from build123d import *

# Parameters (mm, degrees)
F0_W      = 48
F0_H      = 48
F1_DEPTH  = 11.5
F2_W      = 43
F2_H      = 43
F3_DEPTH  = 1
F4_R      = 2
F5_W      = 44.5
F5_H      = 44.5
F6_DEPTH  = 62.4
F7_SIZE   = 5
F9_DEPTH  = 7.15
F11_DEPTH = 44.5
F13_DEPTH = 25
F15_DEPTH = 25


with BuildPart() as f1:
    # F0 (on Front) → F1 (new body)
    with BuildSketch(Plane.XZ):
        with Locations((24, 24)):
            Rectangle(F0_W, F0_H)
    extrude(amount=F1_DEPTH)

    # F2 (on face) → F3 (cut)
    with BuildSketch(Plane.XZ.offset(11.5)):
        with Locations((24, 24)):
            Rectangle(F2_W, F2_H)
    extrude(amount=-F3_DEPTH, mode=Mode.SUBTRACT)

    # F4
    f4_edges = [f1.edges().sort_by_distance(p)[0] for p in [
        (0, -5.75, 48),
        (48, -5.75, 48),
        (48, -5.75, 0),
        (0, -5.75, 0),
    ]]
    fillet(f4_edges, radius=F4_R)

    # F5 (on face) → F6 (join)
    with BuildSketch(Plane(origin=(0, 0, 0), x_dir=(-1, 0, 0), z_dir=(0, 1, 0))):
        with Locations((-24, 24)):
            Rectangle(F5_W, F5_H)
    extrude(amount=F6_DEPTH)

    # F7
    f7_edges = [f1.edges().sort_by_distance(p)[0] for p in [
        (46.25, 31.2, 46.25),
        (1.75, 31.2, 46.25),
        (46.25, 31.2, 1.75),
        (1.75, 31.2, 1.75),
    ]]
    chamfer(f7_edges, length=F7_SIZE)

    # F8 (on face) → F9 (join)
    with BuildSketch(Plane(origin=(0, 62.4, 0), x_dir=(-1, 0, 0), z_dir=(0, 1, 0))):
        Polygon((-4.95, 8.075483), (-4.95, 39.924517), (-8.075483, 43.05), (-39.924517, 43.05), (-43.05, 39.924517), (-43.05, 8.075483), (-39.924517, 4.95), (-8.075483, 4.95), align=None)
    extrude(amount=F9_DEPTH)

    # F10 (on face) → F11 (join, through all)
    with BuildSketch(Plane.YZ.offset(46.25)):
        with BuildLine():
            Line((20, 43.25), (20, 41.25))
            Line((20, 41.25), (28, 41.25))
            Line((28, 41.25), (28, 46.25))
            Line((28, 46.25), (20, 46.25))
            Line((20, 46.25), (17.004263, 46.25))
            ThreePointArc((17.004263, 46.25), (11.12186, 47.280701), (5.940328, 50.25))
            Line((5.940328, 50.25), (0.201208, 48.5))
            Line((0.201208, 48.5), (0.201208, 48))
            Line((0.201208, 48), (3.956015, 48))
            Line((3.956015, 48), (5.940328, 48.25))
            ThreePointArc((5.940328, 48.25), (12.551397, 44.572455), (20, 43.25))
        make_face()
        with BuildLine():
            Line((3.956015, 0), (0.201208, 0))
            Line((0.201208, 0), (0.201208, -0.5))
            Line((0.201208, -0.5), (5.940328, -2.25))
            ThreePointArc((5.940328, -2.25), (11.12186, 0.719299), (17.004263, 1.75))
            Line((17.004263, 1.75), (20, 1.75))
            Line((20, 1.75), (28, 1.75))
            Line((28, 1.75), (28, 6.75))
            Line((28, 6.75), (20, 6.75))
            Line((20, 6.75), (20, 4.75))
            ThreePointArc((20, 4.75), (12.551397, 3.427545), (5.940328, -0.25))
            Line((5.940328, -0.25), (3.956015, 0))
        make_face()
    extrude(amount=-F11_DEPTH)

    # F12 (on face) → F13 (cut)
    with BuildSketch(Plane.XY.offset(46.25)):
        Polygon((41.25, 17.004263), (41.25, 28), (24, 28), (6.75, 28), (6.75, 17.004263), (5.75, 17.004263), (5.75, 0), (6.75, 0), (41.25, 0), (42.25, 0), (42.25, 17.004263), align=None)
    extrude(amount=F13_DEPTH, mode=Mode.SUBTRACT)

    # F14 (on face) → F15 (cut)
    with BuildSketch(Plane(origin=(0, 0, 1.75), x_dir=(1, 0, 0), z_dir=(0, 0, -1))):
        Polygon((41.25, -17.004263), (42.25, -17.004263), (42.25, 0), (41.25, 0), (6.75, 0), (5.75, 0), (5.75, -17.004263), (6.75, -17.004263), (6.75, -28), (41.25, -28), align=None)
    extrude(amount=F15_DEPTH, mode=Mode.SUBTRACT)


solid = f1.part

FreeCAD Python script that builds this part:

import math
import FreeCAD as App
import Part
import Sketcher
from FreeCAD import Vector


def edges_at(feature, points):
    """Names of the edges that pass closest to the given points."""
    edges = feature.Shape.Edges
    near = lambda p: min(range(len(edges)), key=lambda i: edges[i].distToShape(Part.Vertex(*p))[0])
    return sorted({f"Edge{near(p) + 1}" for p in points})

doc = App.newDocument("Part")
body = doc.addObject("PartDesign::Body", "Body")

sketch1 = body.newObject("Sketcher::SketchObject", "Sketch")
sketch1.AttachmentSupport = (doc.getObject("XZ_Plane"), [""])
sketch1.MapMode = "FlatFace"
sketch1.addGeometry([
    Part.LineSegment(Vector(0, 48, 0), Vector(0, 0, 0)),
    Part.LineSegment(Vector(0, 0, 0), Vector(48, 0, 0)),
    Part.LineSegment(Vector(48, 0, 0), Vector(48, 48, 0)),
    Part.LineSegment(Vector(48, 48, 0), Vector(0, 48, 0)),
], False)
sketch1.addConstraint([
    Sketcher.Constraint("Coincident", 0, 2, 1, 1),
    Sketcher.Constraint("Coincident", 1, 2, 2, 1),
    Sketcher.Constraint("Coincident", 2, 2, 3, 1),
    Sketcher.Constraint("Coincident", 3, 2, 0, 1),
    Sketcher.Constraint("Vertical", 0),
    Sketcher.Constraint("Horizontal", 1),
    Sketcher.Constraint("Vertical", 2),
    Sketcher.Constraint("Horizontal", 3),
    Sketcher.Constraint("Coincident", 0, 2, -1, 1),
    Sketcher.Constraint("Equal", 3, 0),
    Sketcher.Constraint("DistanceX", 1, 1, 1, 2, 48.0),
])
pad1 = body.newObject("PartDesign::Pad", "Pad")
pad1.Profile = sketch1
pad1.Length = 11.5

sketch2 = body.newObject("Sketcher::SketchObject", "Sketch001")
sketch2.AttachmentSupport = (doc.getObject("XZ_Plane"), [""])
sketch2.MapMode = "FlatFace"
sketch2.AttachmentOffset = App.Placement(Vector(0, 0, 11.5), App.Rotation())
sketch2.addGeometry([
    Part.LineSegment(Vector(2, 46, 0), Vector(2, 2, 0)),
    Part.LineSegment(Vector(2, 2, 0), Vector(46, 2, 0)),
    Part.LineSegment(Vector(46, 2, 0), Vector(46, 46, 0)),
    Part.LineSegment(Vector(46, 46, 0), Vector(2, 46, 0)),
], False)
sketch2.addConstraint([
    Sketcher.Constraint("Coincident", 0, 2, 1, 1),
    Sketcher.Constraint("Coincident", 1, 2, 2, 1),
    Sketcher.Constraint("Coincident", 2, 2, 3, 1),
    Sketcher.Constraint("Coincident", 3, 2, 0, 1),
    Sketcher.Constraint("Vertical", 0),
    Sketcher.Constraint("Horizontal", 1),
    Sketcher.Constraint("Vertical", 2),
    Sketcher.Constraint("Horizontal", 3),
    Sketcher.Constraint("Equal", 3, 0),
    Sketcher.Constraint("DistanceX", 1, 1, 1, 2, 43.0),
    Sketcher.Constraint("DistanceX", -1, 1, 0, 2, 2.5),
    Sketcher.Constraint("DistanceY", -1, 1, 0, 2, 2.5),
])
pocket1 = body.newObject("PartDesign::Pocket", "Pocket")
pocket1.Profile = sketch2
pocket1.Length = 1
doc.recompute()

fillet = body.newObject("PartDesign::Fillet", "Fillet")
fillet.Base = (pocket1, edges_at(pocket1, [
    (0, -5.75, 48),
    (48, -5.75, 48),
    (48, -5.75, 0),
    (0, -5.75, 0),
]))
fillet.Radius = 2

sketch3 = body.newObject("Sketcher::SketchObject", "Sketch002")
sketch3.AttachmentSupport = (doc.getObject("XZ_Plane"), [""])
sketch3.MapMode = "FlatFace"
sketch3.addGeometry([
    Part.LineSegment(Vector(46, 46, 0), Vector(46, 2, 0)),
    Part.LineSegment(Vector(46, 2, 0), Vector(2, 2, 0)),
    Part.LineSegment(Vector(2, 2, 0), Vector(2, 46, 0)),
    Part.LineSegment(Vector(2, 46, 0), Vector(46, 46, 0)),
], False)
sketch3.addConstraint([
    Sketcher.Constraint("Coincident", 0, 2, 1, 1),
    Sketcher.Constraint("Coincident", 1, 2, 2, 1),
    Sketcher.Constraint("Coincident", 2, 2, 3, 1),
    Sketcher.Constraint("Coincident", 3, 2, 0, 1),
    Sketcher.Constraint("Vertical", 0),
    Sketcher.Constraint("Horizontal", 1),
    Sketcher.Constraint("Vertical", 2),
    Sketcher.Constraint("Horizontal", 3),
    Sketcher.Constraint("Equal", 3, 0),
    Sketcher.Constraint("DistanceX", 1, 2, 1, 1, 44.5),
    Sketcher.Constraint("DistanceX", -1, 1, 0, 2, 46.25),
    Sketcher.Constraint("DistanceY", -1, 1, 0, 2, 1.75),
])
pad2 = body.newObject("PartDesign::Pad", "Pad001")
pad2.Profile = sketch3
pad2.Length = 62.4
pad2.Reversed = True
doc.recompute()

chamfer = body.newObject("PartDesign::Chamfer", "Chamfer")
chamfer.Base = (pad2, edges_at(pad2, [
    (46.25, 31.2, 46.25),
    (1.75, 31.2, 46.25),
    (46.25, 31.2, 1.75),
    (1.75, 31.2, 1.75),
]))
chamfer.Size = 5

sketch4 = body.newObject("Sketcher::SketchObject", "Sketch003")
sketch4.AttachmentSupport = (doc.getObject("XZ_Plane"), [""])
sketch4.MapMode = "FlatFace"
sketch4.AttachmentOffset = App.Placement(Vector(0, 0, -62.4), App.Rotation())
sketch4.addGeometry([
    Part.LineSegment(Vector(5, 8.1, 0), Vector(5, 39.9, 0)),
    Part.LineSegment(Vector(5, 39.9, 0), Vector(8.1, 43, 0)),
    Part.LineSegment(Vector(8.1, 43, 0), Vector(39.9, 43, 0)),
    Part.LineSegment(Vector(39.9, 43, 0), Vector(43, 39.9, 0)),
    Part.LineSegment(Vector(43, 39.9, 0), Vector(43, 8.1, 0)),
    Part.LineSegment(Vector(43, 8.1, 0), Vector(39.9, 5, 0)),
    Part.LineSegment(Vector(39.9, 5, 0), Vector(8.1, 5, 0)),
    Part.LineSegment(Vector(8.1, 5, 0), Vector(5, 8.1, 0)),
], False)
sketch4.addConstraint([
    Sketcher.Constraint("Coincident", 0, 2, 1, 1),
    Sketcher.Constraint("Coincident", 1, 2, 2, 1),
    Sketcher.Constraint("Coincident", 2, 2, 3, 1),
    Sketcher.Constraint("Coincident", 3, 2, 4, 1),
    Sketcher.Constraint("Coincident", 4, 2, 5, 1),
    Sketcher.Constraint("Coincident", 5, 2, 6, 1),
    Sketcher.Constraint("Coincident", 6, 2, 7, 1),
    Sketcher.Constraint("Coincident", 7, 2, 0, 1),
    Sketcher.Constraint("Vertical", 0),
    Sketcher.Constraint("Horizontal", 2),
    Sketcher.Constraint("Vertical", 4),
    Sketcher.Constraint("Horizontal", 6),
    Sketcher.Constraint("Perpendicular", 1, 3),
    Sketcher.Constraint("Perpendicular", 3, 5),
    Sketcher.Constraint("Perpendicular", 5, 7),
    Sketcher.Constraint("Horizontal", 0, 2, 3, 2),
    Sketcher.Constraint("Horizontal", 4, 2, 7, 2),
    Sketcher.Constraint("Vertical", 2, 2, 5, 2),
    Sketcher.Constraint("Vertical", 1, 2, 6, 2),
    Sketcher.Constraint("Equal", 6, 0),
    Sketcher.Constraint("DistanceX", 0, 2, 3, 2, 38.1),
    Sketcher.Constraint("DistanceX", -1, 1, 0, 2, 4.95),
    Sketcher.Constraint("DistanceY", -1, 1, 1, 2, 43.05),
    Sketcher.Constraint("Distance", 1, 4.4201),
])
pad3 = body.newObject("PartDesign::Pad", "Pad002")
pad3.Profile = sketch4
pad3.Length = 7.15
pad3.Reversed = True

sketch5 = body.newObject("Sketcher::SketchObject", "Sketch004")
sketch5.AttachmentSupport = (doc.getObject("YZ_Plane"), [""])
sketch5.MapMode = "FlatFace"
sketch5.AttachmentOffset = App.Placement(Vector(0, 0, 46.25), App.Rotation())
sketch5.addGeometry([
    Part.LineSegment(Vector(20, 43.2, 0), Vector(20, 41.2, 0)),
    Part.LineSegment(Vector(20, 41.2, 0), Vector(28, 41.2, 0)),
    Part.LineSegment(Vector(28, 41.2, 0), Vector(28, 46.2, 0)),
    Part.LineSegment(Vector(28, 46.2, 0), Vector(17, 46.2, 0)),
    Part.ArcOfCircle(Part.Circle(Vector(17, 63.6, 0), Vector(0, 0, 1), 17.3), math.radians(-130), math.radians(-90)),
    Part.LineSegment(Vector(5.9, 50.2, 0), Vector(0.2, 48.5, 0)),
    Part.LineSegment(Vector(0.2, 48.5, 0), Vector(0.2, 48, 0)),
    Part.LineSegment(Vector(0.2, 48, 0), Vector(4, 48, 0)),
    Part.LineSegment(Vector(4, 48, 0), Vector(5.9, 48.2, 0)),
    Part.ArcOfCircle(Part.Circle(Vector(20.2, 66.1, 0), Vector(0, 0, 1), 22.9), math.radians(-129), math.radians(-91)),
    Part.LineSegment(Vector(4, 0, 0), Vector(0.2, 0, 0)),
    Part.LineSegment(Vector(0.2, 0, 0), Vector(0.2, -0.5, 0)),
    Part.LineSegment(Vector(0.2, -0.5, 0), Vector(5.9, -2.2, 0)),
    Part.ArcOfCircle(Part.Circle(Vector(17, -15.6, 0), Vector(0, 0, 1), 17.3), math.radians(90), math.radians(130)),
    Part.LineSegment(Vector(17, 1.8, 0), Vector(28, 1.8, 0)),
    Part.LineSegment(Vector(28, 1.8, 0), Vector(28, 6.8, 0)),
    Part.LineSegment(Vector(28, 6.8, 0), Vector(20, 6.8, 0)),
    Part.LineSegment(Vector(20, 6.8, 0), Vector(20, 4.8, 0)),
    Part.ArcOfCircle(Part.Circle(Vector(20.2, -18.1, 0), Vector(0, 0, 1), 22.9), math.radians(91), math.radians(129)),
    Part.LineSegment(Vector(5.9, -0.2, 0), Vector(4, 0, 0)),
], False)
sketch5.addConstraint([
    Sketcher.Constraint("Coincident", 0, 2, 1, 1),
    Sketcher.Constraint("Coincident", 1, 2, 2, 1),
    Sketcher.Constraint("Coincident", 2, 2, 3, 1),
    Sketcher.Constraint("Tangent", 3, 2, 4, 2),
    Sketcher.Constraint("Coincident", 4, 1, 5, 1),
    Sketcher.Constraint("Coincident", 5, 2, 6, 1),
    Sketcher.Constraint("Coincident", 6, 2, 7, 1),
    Sketcher.Constraint("Coincident", 7, 2, 8, 1),
    Sketcher.Constraint("Coincident", 8, 2, 9, 1),
    Sketcher.Constraint("Coincident", 9, 2, 0, 1),
    Sketcher.Constraint("Coincident", 10, 2, 11, 1),
    Sketcher.Constraint("Coincident", 11, 2, 12, 1),
    Sketcher.Constraint("Coincident", 12, 2, 13, 2),
    Sketcher.Constraint("Tangent", 13, 1, 14, 1),
    Sketcher.Constraint("Coincident", 14, 2, 15, 1),
    Sketcher.Constraint("Coincident", 15, 2, 16, 1),
    Sketcher.Constraint("Coincident", 16, 2, 17, 1),
    Sketcher.Constraint("Coincident", 17, 2, 18, 1),
    Sketcher.Constraint("Coincident", 18, 2, 19, 1),
    Sketcher.Constraint("Coincident", 19, 2, 10, 1),
    Sketcher.Constraint("Vertical", 0),
    Sketcher.Constraint("Horizontal", 1),
    Sketcher.Constraint("Vertical", 2),
    Sketcher.Constraint("Horizontal", 3),
    Sketcher.Constraint("Vertical", 6),
    Sketcher.Constraint("Horizontal", 7),
    Sketcher.Constraint("Horizontal", 10),
    Sketcher.Constraint("Vertical", 11),
    Sketcher.Constraint("Horizontal", 14),
    Sketcher.Constraint("Vertical", 15),
    Sketcher.Constraint("Horizontal", 16),
    Sketcher.Constraint("Vertical", 17),
    Sketcher.Constraint("Equal", 4, 13),
    Sketcher.Constraint("Equal", 9, 18),
    Sketcher.Constraint("PointOnObject", 10, 2, -1),
    Sketcher.Constraint("Vertical", 4, 3, 13, 3),
    Sketcher.Constraint("Vertical", 9, 3, 18, 3),
    Sketcher.Constraint("Vertical", 4, 1, 8, 2),
    Sketcher.Constraint("Vertical", 6, 2, 10, 2),
    Sketcher.Constraint("Vertical", 8, 2, 12, 2),
    Sketcher.Constraint("Vertical", 2, 2, 14, 2),
    Sketcher.Constraint("Vertical", 9, 2, 16, 2),
    Sketcher.Constraint("Vertical", 12, 2, 18, 2),
    Sketcher.Constraint("Vertical", 7, 2, 19, 2),
    Sketcher.Constraint("Equal", 6, 11),
    Sketcher.Constraint("Equal", 2, 15),
    Sketcher.Constraint("Equal", 0, 17),
    Sketcher.Constraint("Equal", 5, 12),
    Sketcher.Constraint("DistanceX", 1, 1, 1, 2, 8.0),
    Sketcher.Constraint("DistanceY", 0, 2, 0, 1, 2.0),
    Sketcher.Constraint("DistanceY", 2, 1, 2, 2, 5.0),
    Sketcher.Constraint("Distance", 5, 6.0),
    Sketcher.Constraint("Distance", 8, 2.0),
    Sketcher.Constraint("DistanceY", 6, 2, 6, 1, 0.5),
    Sketcher.Constraint("DistanceX", -1, 1, 0, 2, 20.0),
    Sketcher.Constraint("DistanceY", -1, 1, 6, 2, 48.0),
    Sketcher.Constraint("DistanceY", 3, 2, 4, 1, 4.0),
    Sketcher.Constraint("DistanceY", 8, 2, 4, 1, 2.0),
    Sketcher.Constraint("DistanceY", 12, 2, 0, 2, 43.5),
    Sketcher.Constraint("Radius", 4, 17.301328),
    Sketcher.Constraint("Radius", 9, 22.896054),
    Sketcher.Constraint("DistanceX", 3, 2, 3, 1, 10.995737),
])
pad4 = body.newObject("PartDesign::Pad", "Pad003")
pad4.Profile = sketch5
pad4.Type = "UpToLast"
pad4.Reversed = True

sketch6 = body.newObject("Sketcher::SketchObject", "Sketch005")
sketch6.AttachmentSupport = (doc.getObject("XY_Plane"), [""])
sketch6.MapMode = "FlatFace"
sketch6.AttachmentOffset = App.Placement(Vector(0, 0, 46.25), App.Rotation())
sketch6.addGeometry([
    Part.LineSegment(Vector(41.2, 17, 0), Vector(41.2, 28, 0)),
    Part.LineSegment(Vector(41.2, 28, 0), Vector(6.8, 28, 0)),
    Part.LineSegment(Vector(6.8, 28, 0), Vector(6.8, 17, 0)),
    Part.LineSegment(Vector(6.8, 17, 0), Vector(5.8, 17, 0)),
    Part.LineSegment(Vector(5.8, 17, 0), Vector(5.8, 0, 0)),
    Part.LineSegment(Vector(5.8, 0, 0), Vector(42.2, 0, 0)),
    Part.LineSegment(Vector(42.2, 0, 0), Vector(42.2, 17, 0)),
    Part.LineSegment(Vector(42.2, 17, 0), Vector(41.2, 17, 0)),
], False)
sketch6.addConstraint([
    Sketcher.Constraint("Coincident", 0, 2, 1, 1),
    Sketcher.Constraint("Coincident", 1, 2, 2, 1),
    Sketcher.Constraint("Coincident", 2, 2, 3, 1),
    Sketcher.Constraint("Coincident", 3, 2, 4, 1),
    Sketcher.Constraint("Coincident", 4, 2, 5, 1),
    Sketcher.Constraint("Coincident", 5, 2, 6, 1),
    Sketcher.Constraint("Coincident", 6, 2, 7, 1),
    Sketcher.Constraint("Coincident", 7, 2, 0, 1),
    Sketcher.Constraint("Vertical", 0),
    Sketcher.Constraint("Horizontal", 1),
    Sketcher.Constraint("Vertical", 2),
    Sketcher.Constraint("Horizontal", 3),
    Sketcher.Constraint("Vertical", 4),
    Sketcher.Constraint("Horizontal", 5),
    Sketcher.Constraint("Vertical", 6),
    Sketcher.Constraint("Horizontal", 7),
    Sketcher.Constraint("PointOnObject", 4, 2, -1),
    Sketcher.Constraint("Horizontal", 3, 2, 6, 2),
    Sketcher.Constraint("Equal", 3, 7),
    Sketcher.Constraint("DistanceX", 3, 2, 3, 1, 1.0),
    Sketcher.Constraint("DistanceX", 1, 2, 1, 1, 34.5),
    Sketcher.Constraint("DistanceY", -1, 1, 0, 2, 28.0),
    Sketcher.Constraint("DistanceX", -1, 1, 0, 2, 41.25),
    Sketcher.Constraint("DistanceY", 0, 1, 0, 2, 10.995737),
])
pocket2 = body.newObject("PartDesign::Pocket", "Pocket001")
pocket2.Profile = sketch6
pocket2.Length = 25
pocket2.Reversed = True

sketch7 = body.newObject("Sketcher::SketchObject", "Sketch006")
sketch7.AttachmentSupport = (doc.getObject("XY_Plane"), [""])
sketch7.MapMode = "FlatFace"
sketch7.AttachmentOffset = App.Placement(Vector(0, 0, 1.75), App.Rotation())
sketch7.addGeometry([
    Part.LineSegment(Vector(41.2, 17, 0), Vector(42.2, 17, 0)),
    Part.LineSegment(Vector(42.2, 17, 0), Vector(42.2, 0, 0)),
    Part.LineSegment(Vector(42.2, 0, 0), Vector(5.8, 0, 0)),
    Part.LineSegment(Vector(5.8, 0, 0), Vector(5.8, 17, 0)),
    Part.LineSegment(Vector(5.8, 17, 0), Vector(6.8, 17, 0)),
    Part.LineSegment(Vector(6.8, 17, 0), Vector(6.8, 28, 0)),
    Part.LineSegment(Vector(6.8, 28, 0), Vector(41.2, 28, 0)),
    Part.LineSegment(Vector(41.2, 28, 0), Vector(41.2, 17, 0)),
], False)
sketch7.addConstraint([
    Sketcher.Constraint("Coincident", 0, 2, 1, 1),
    Sketcher.Constraint("Coincident", 1, 2, 2, 1),
    Sketcher.Constraint("Coincident", 2, 2, 3, 1),
    Sketcher.Constraint("Coincident", 3, 2, 4, 1),
    Sketcher.Constraint("Coincident", 4, 2, 5, 1),
    Sketcher.Constraint("Coincident", 5, 2, 6, 1),
    Sketcher.Constraint("Coincident", 6, 2, 7, 1),
    Sketcher.Constraint("Coincident", 7, 2, 0, 1),
    Sketcher.Constraint("Horizontal", 0),
    Sketcher.Constraint("Vertical", 1),
    Sketcher.Constraint("Horizontal", 2),
    Sketcher.Constraint("Vertical", 3),
    Sketcher.Constraint("Horizontal", 4),
    Sketcher.Constraint("Vertical", 5),
    Sketcher.Constraint("Horizontal", 6),
    Sketcher.Constraint("Vertical", 7),
    Sketcher.Constraint("PointOnObject", 1, 2, -1),
    Sketcher.Constraint("Horizontal", 0, 2, 3, 2),
    Sketcher.Constraint("Equal", 0, 4),
    Sketcher.Constraint("DistanceX", 0, 1, 0, 2, 1.0),
    Sketcher.Constraint("DistanceX", 2, 2, 2, 1, 36.5),
    Sketcher.Constraint("DistanceY", -1, 1, 5, 2, 28.0),
    Sketcher.Constraint("DistanceX", -1, 1, 0, 2, 42.25),
    Sketcher.Constraint("DistanceY", 1, 2, 1, 1, 17.004263),
])
pocket3 = body.newObject("PartDesign::Pocket", "Pocket002")
pocket3.Profile = sketch7
pocket3.Length = 25

doc.recompute()
